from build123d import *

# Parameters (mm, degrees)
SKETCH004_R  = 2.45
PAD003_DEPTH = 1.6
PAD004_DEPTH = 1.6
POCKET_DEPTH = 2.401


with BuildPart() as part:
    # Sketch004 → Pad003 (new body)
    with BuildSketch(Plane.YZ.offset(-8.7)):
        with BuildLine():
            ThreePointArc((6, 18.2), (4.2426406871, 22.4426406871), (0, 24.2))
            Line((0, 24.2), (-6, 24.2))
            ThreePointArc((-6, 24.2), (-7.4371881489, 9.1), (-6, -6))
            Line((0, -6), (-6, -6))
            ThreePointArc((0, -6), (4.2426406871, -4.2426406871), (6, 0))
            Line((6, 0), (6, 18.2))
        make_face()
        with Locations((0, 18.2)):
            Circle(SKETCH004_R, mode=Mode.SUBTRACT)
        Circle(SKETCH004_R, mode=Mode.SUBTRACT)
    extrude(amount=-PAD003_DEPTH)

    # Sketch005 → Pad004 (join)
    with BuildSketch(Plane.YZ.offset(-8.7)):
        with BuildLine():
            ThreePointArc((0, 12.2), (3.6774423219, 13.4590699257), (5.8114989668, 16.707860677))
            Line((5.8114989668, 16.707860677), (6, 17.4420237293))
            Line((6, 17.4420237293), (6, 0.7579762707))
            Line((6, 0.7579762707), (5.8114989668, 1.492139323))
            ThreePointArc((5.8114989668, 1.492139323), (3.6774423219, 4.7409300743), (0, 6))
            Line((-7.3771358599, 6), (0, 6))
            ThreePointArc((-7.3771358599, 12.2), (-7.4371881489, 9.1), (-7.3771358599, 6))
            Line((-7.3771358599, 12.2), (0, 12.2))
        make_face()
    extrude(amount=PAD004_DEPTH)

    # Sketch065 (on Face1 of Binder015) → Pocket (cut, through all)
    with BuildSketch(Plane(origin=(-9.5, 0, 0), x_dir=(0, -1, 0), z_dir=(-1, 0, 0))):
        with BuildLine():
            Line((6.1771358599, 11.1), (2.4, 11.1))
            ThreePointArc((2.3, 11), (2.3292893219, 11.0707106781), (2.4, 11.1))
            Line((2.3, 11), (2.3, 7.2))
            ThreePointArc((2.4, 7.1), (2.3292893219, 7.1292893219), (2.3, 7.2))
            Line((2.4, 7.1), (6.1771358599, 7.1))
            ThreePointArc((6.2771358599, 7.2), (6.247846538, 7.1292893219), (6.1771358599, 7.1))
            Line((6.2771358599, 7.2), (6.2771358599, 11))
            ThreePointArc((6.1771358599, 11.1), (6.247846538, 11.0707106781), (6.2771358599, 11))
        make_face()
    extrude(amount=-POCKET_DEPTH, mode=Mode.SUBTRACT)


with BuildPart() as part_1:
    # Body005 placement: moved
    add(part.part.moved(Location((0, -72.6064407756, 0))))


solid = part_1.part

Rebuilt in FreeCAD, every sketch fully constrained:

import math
import FreeCAD as App
import Part
import Sketcher
Q = App.Units.Quantity

doc = App.newDocument("Part")
params = doc.addObject("Spreadsheet::Sheet", "Params")
for row, (alias, value) in enumerate([
    ("sketch1_radius", "6 mm"),
    ("sketch1_diameter", "4.9 mm"),
    ("sketch1_width", "6 mm"),
    ("sketch1_height", "18.2 mm"),
    ("pad1_length", "1.6 mm"),
    ("sketch2_radius", "6 mm"),
    ("pad2_length", "1.6 mm"),
    ("sketch3_radius", "0.1 mm"),
    ("sketch3_height", "3.8 mm"),
], start=1):
    params.set(f"A{row}", alias)
    params.set(f"B{row}", "=" + value)
    params.setAlias(f"B{row}", alias)

body = doc.addObject("PartDesign::Body", "Body")

sketch1 = body.newObject("Sketcher::SketchObject", "Sketch")
sketch1.AttachmentSupport = (doc.getObject("YZ_Plane"), [""])
sketch1.MapMode = "FlatFace"
sketch1.AttachmentOffset = App.Placement(App.Vector(0, 0, -8.7), App.Rotation())
sketch1.addGeometry([
    Part.ArcOfCircle(Part.Circle(App.Vector(0, 18.2, 0), App.Vector(0, 0, 1), 6), math.radians(0), math.radians(90)),
    Part.LineSegment(App.Vector(0, 24.2, 0), App.Vector(-6, 24.2, 0)),
    Part.ArcOfCircle(Part.Circle(App.Vector(72.6, 9.1, 0), App.Vector(0, 0, 1), 80), math.radians(169), math.radians(191)),
    Part.LineSegment(App.Vector(-6, -6, 0), App.Vector(0, -6, 0)),
    Part.ArcOfCircle(Part.Circle(App.Vector(0, 0, 0), App.Vector(0, 0, 1), 6), math.radians(-90), math.radians(0)),
    Part.LineSegment(App.Vector(6, 0, 0), App.Vector(6, 18.2, 0)),
    Part.Circle(App.Vector(0, 0, 0), App.Vector(0, 0, 1), 2.5),
    Part.Circle(App.Vector(0, 18.2, 0), App.Vector(0, 0, 1), 2.5),
], False)
sketch1.addConstraint([
    Sketcher.Constraint("Tangent", 0, 2, 1, 1),
    Sketcher.Constraint("Coincident", 1, 2, 2, 1),
    Sketcher.Constraint("Coincident", 2, 2, 3, 1),
    Sketcher.Constraint("Tangent", 3, 2, 4, 1),
    Sketcher.Constraint("Tangent", 4, 2, 5, 1),
    Sketcher.Constraint("Tangent", 5, 2, 0, 1),
    Sketcher.Constraint("Horizontal", 1),
    Sketcher.Constraint("Horizontal", 3),
    Sketcher.Constraint("Vertical", 5),
    Sketcher.Constraint("Coincident", 4, 3, -1, 1),
    Sketcher.Constraint("Coincident", 6, 3, -1, 1),
    Sketcher.Constraint("Coincident", 7, 3, 0, 3),
    Sketcher.Constraint("Equal", 0, 4),
    Sketcher.Constraint("Equal", 6, 7),
    Sketcher.Constraint("Vertical", 1, 2, 2, 2),
    Sketcher.Constraint("Radius", 0, 6.0),
    Sketcher.Constraint("Diameter", 6, 4.9),
    Sketcher.Constraint("DistanceX", 1, 2, 1, 1, 6.0),
    Sketcher.Constraint("DistanceY", 5, 1, 5, 2, 18.2),
    Sketcher.Constraint("Radius", 2, 80.043629),
])
sketch1.setExpression("Constraints[15]", "Params.sketch1_radius")
sketch1.setExpression("Constraints[16]", "Params.sketch1_diameter")
sketch1.setExpression("Constraints[17]", "Params.sketch1_width")
sketch1.setExpression("Constraints[18]", "Params.sketch1_height")
pad1 = body.newObject("PartDesign::Pad", "Pad")
pad1.Profile = sketch1
pad1.setExpression("Length", "Params.pad1_length")
pad1.Reversed = True

sketch2 = body.newObject("Sketcher::SketchObject", "Sketch001")
sketch2.AttachmentSupport = (doc.getObject("YZ_Plane"), [""])
sketch2.MapMode = "FlatFace"
sketch2.AttachmentOffset = App.Placement(App.Vector(0, 0, -8.7), App.Rotation())
sketch2.addGeometry([
    Part.ArcOfCircle(Part.Circle(App.Vector(0, 18.2, 0), App.Vector(0, 0, 1), 6), math.radians(-90), math.radians(-14)),
    Part.LineSegment(App.Vector(0, 12.2, 0), App.Vector(-7.4, 12.2, 0)),
    Part.ArcOfCircle(Part.Circle(App.Vector(72.6, 9.1, 0), App.Vector(0, 0, 1), 80), math.radians(177.78), math.radians(182.22)),
    Part.LineSegment(App.Vector(-7.4, 6, 0), App.Vector(0, 6, 0)),
    Part.ArcOfCircle(Part.Circle(App.Vector(0, 0, 0), App.Vector(0, 0, 1), 6), math.radians(14), math.radians(90)),
    Part.LineSegment(App.Vector(5.8, 1.5, 0), App.Vector(6, 0.8, 0)),
    Part.LineSegment(App.Vector(6, 0.8, 0), App.Vector(6, 17.4, 0)),
    Part.LineSegment(App.Vector(6, 17.4, 0), App.Vector(5.8, 16.7, 0)),
], False)
sketch2.addConstraint([
    Sketcher.Constraint("Tangent", 0, 1, 1, 1),
    Sketcher.Constraint("Coincident", 1, 2, 2, 1),
    Sketcher.Constraint("Coincident", 2, 2, 3, 1),
    Sketcher.Constraint("Tangent", 3, 2, 4, 2),
    Sketcher.Constraint("Tangent", 4, 1, 5, 1),
    Sketcher.Constraint("Coincident", 5, 2, 6, 1),
    Sketcher.Constraint("Coincident", 6, 2, 7, 1),
    Sketcher.Constraint("Tangent", 7, 2, 0, 2),
    Sketcher.Constraint("Horizontal", 1),
    Sketcher.Constraint("Horizontal", 3),
    Sketcher.Constraint("Vertical", 6),
    Sketcher.Constraint("Coincident", 4, 3, -1, 1),
    Sketcher.Constraint("Equal", 0, 4),
    Sketcher.Constraint("PointOnObject", 0, 3, -2),
    Sketcher.Constraint("Vertical", 1, 2, 2, 2),
    Sketcher.Constraint("Vertical", 4, 1, 7, 2),
    Sketcher.Constraint("Radius", 0, 6.0),
    Sketcher.Constraint("DistanceX", -1, 1, 5, 2, 6.0),
    Sketcher.Constraint("Angle", 5, Q("-75.6 deg")),
    Sketcher.Constraint("DistanceY", -1, 1, 0, 3, 18.2),
    Sketcher.Constraint("Radius", 2, 80.043629),
    Sketcher.Constraint("DistanceX", 1, 2, 1, 1, 7.377136),
])
sketch2.setExpression("Constraints[16]", "Params.sketch2_radius")
pad2 = body.newObject("PartDesign::Pad", "Pad001")
pad2.Profile = sketch2
pad2.setExpression("Length", "Params.pad2_length")

sketch3 = body.newObject("Sketcher::SketchObject", "Sketch002")
sketch3.AttachmentSupport = (doc.getObject("YZ_Plane"), [""])
sketch3.MapMode = "FlatFace"
sketch3.AttachmentOffset = App.Placement(App.Vector(0, 0, -9.5), App.Rotation())
sketch3.addGeometry([
    Part.LineSegment(App.Vector(-6.18, 11.1, 0), App.Vector(-2.4, 11.1, 0)),
    Part.ArcOfCircle(Part.Circle(App.Vector(-2.4, 11, 0), App.Vector(0, 0, 1), 0.1), math.radians(0), math.radians(90)),
    Part.LineSegment(App.Vector(-2.3, 11, 0), App.Vector(-2.3, 7.2, 0)),
    Part.ArcOfCircle(Part.Circle(App.Vector(-2.4, 7.2, 0), App.Vector(0, 0, 1), 0.1), math.radians(-90), math.radians(0)),
    Part.LineSegment(App.Vector(-2.4, 7.1, 0), App.Vector(-6.18, 7.1, 0)),
    Part.ArcOfCircle(Part.Circle(App.Vector(-6.18, 7.2, 0), App.Vector(0, 0, 1), 0.1), math.radians(180), math.radians(270)),
    Part.LineSegment(App.Vector(-6.28, 7.2, 0), App.Vector(-6.28, 11, 0)),
    Part.ArcOfCircle(Part.Circle(App.Vector(-6.18, 11, 0), App.Vector(0, 0, 1), 0.1), math.radians(90), math.radians(180)),
], False)
sketch3.addConstraint([
    Sketcher.Constraint("Tangent", 0, 2, 1, 2),
    Sketcher.Constraint("Tangent", 1, 1, 2, 1),
    Sketcher.Constraint("Tangent", 2, 2, 3, 2),
    Sketcher.Constraint("Tangent", 3, 1, 4, 1),
    Sketcher.Constraint("Tangent", 4, 2, 5, 2),
    Sketcher.Constraint("Tangent", 5, 1, 6, 1),
    Sketcher.Constraint("Tangent", 6, 2, 7, 2),
    Sketcher.Constraint("Tangent", 7, 1, 0, 1),
    Sketcher.Constraint("Horizontal", 0),
    Sketcher.Constraint("Vertical", 2),
    Sketcher.Constraint("Horizontal", 4),
    Sketcher.Constraint("Vertical", 6),
    Sketcher.Constraint("Equal", 1, 3),
    Sketcher.Constraint("Equal", 3, 5),
    Sketcher.Constraint("Equal", 5, 7),
    Sketcher.Constraint("Radius", 1, 0.1),
    Sketcher.Constraint("DistanceY", 2, 2, 2, 1, 3.8),
    Sketcher.Constraint("DistanceY", -1, 1, 1, 3, 11.0),
    Sketcher.Constraint("DistanceX", 1, 3, -1, 1, 2.4),
    Sketcher.Constraint("DistanceX", 0, 1, 0, 2, 3.777136),
])
sketch3.setExpression("Constraints[15]", "Params.sketch3_radius")
sketch3.setExpression("Constraints[16]", "Params.sketch3_height")
pocket1 = body.newObject("PartDesign::Pocket", "Pocket")
pocket1.Profile = sketch3
pocket1.Type = "ThroughAll"
pocket1.Reversed = True
body2 = doc.addObject("PartDesign::Body", "Body001")
doc.recompute()

body.Placement = App.Placement(App.Vector(0, -72.606441, 0), App.Rotation(App.Vector(0, 0, 1), 0))
boolean = body2.newObject("PartDesign::Boolean", "Boolean")
boolean.Type = "Fuse"
boolean.addObjects([body])

doc.recompute()
